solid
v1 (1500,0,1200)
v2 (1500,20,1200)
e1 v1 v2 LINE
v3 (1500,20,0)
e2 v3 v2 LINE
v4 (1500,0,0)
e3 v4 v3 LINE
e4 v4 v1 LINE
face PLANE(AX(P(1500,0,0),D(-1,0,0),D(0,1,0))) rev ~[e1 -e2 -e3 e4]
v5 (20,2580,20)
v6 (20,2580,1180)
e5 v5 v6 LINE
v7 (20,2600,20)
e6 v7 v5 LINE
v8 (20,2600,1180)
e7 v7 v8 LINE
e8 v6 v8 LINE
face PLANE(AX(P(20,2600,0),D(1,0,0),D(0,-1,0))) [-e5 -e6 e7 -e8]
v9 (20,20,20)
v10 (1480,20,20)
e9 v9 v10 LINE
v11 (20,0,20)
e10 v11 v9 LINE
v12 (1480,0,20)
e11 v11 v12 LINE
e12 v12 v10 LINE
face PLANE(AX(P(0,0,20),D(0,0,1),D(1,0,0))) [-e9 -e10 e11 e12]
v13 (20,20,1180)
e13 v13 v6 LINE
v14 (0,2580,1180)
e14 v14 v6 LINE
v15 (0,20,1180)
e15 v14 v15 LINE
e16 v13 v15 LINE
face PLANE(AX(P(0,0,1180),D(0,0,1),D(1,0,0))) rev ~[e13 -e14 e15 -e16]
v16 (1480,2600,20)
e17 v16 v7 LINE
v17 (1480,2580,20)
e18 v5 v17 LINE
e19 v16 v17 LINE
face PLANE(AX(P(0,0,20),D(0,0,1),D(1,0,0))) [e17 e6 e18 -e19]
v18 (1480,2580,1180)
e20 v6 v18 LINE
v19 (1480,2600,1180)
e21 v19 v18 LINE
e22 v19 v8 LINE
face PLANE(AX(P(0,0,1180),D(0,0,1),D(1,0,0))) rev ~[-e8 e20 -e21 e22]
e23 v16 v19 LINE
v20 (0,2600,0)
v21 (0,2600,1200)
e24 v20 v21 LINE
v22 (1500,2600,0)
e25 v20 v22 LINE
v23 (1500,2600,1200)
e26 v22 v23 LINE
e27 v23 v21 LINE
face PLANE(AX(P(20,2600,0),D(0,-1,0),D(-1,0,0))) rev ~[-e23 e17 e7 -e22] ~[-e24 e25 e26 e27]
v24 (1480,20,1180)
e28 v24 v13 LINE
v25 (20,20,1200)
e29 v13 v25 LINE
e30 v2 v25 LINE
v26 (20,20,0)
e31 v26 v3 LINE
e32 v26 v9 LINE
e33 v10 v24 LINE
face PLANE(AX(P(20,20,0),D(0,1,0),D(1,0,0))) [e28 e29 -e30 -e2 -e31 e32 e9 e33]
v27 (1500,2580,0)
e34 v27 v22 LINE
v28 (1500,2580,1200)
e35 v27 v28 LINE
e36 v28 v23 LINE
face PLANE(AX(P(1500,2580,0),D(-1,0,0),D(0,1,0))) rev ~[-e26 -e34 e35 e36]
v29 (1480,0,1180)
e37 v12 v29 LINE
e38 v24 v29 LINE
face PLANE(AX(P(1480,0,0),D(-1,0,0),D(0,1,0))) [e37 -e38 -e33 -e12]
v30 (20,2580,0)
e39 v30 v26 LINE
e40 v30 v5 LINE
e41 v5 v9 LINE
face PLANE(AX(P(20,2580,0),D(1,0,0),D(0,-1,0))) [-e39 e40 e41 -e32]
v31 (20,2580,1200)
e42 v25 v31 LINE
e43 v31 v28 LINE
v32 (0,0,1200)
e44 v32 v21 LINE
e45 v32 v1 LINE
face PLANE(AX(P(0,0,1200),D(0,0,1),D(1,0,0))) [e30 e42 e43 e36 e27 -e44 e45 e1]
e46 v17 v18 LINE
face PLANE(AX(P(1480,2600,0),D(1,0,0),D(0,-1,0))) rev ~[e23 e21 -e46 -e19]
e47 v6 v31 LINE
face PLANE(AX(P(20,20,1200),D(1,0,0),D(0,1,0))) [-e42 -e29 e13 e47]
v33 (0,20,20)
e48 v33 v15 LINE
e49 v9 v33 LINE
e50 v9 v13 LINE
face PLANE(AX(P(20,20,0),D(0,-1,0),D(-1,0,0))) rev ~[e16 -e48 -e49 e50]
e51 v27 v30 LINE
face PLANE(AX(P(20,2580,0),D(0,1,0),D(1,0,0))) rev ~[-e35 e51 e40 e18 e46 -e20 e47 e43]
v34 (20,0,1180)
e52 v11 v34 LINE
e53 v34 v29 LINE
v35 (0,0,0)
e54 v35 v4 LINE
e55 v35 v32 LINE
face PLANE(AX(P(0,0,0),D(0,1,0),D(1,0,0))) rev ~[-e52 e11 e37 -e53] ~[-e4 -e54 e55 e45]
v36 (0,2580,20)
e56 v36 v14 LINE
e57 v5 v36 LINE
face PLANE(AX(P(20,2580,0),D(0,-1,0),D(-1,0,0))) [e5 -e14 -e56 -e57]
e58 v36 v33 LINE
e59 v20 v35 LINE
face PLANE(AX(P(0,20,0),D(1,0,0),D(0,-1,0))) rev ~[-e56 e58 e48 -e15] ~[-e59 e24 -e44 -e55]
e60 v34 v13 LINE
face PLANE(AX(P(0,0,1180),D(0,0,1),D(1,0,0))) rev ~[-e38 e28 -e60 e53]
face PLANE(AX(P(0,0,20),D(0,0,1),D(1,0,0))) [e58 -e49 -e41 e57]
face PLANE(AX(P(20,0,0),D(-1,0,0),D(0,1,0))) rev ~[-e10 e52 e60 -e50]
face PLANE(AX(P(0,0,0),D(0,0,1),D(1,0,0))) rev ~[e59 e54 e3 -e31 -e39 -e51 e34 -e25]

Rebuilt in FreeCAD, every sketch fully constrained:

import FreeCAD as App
import Part
import Sketcher
from FreeCAD import Vector


def add_polygon(sketch, points):
    """Adds a closed chain of lines whose ends are joined by coincident constraints."""
    first, n = sketch.GeometryCount, len(points)
    for a, b in zip(points, points[1:] + points[:1]):
        sketch.addGeometry(Part.LineSegment(App.Vector(*a, 0), App.Vector(*b, 0)), False)
    for i in range(n):
        sketch.addConstraint(Sketcher.Constraint("Coincident", first + i, 2, first + (i + 1) % n, 1))

doc = App.newDocument("Part")
body = doc.addObject("PartDesign::Body", "Body")
body.AllowCompound = True

sketch1 = body.newObject("Sketcher::SketchObject", "Sketch")
sketch1.AttachmentSupport = (doc.getObject("XY_Plane"), [""])
sketch1.MapMode = "FlatFace"
add_polygon(sketch1, [(0, 20), (0, 0), (20, 0), (20, 20)])
add_polygon(sketch1, [(1480, 20), (1480, 0), (1500, 0), (1500, 20)])
add_polygon(sketch1, [(0, 2600), (0, 2580), (20, 2580), (20, 2600)])
add_polygon(sketch1, [(1480, 2600), (1480, 2580), (1500, 2580), (1500, 2600)])
sketch1.addConstraint(Sketcher.Constraint("Vertical", 0))
sketch1.addConstraint(Sketcher.Constraint("Horizontal", 1))
sketch1.addConstraint(Sketcher.Constraint("Vertical", 2))
sketch1.addConstraint(Sketcher.Constraint("Horizontal", 3))
sketch1.addConstraint(Sketcher.Constraint("Vertical", 4))
sketch1.addConstraint(Sketcher.Constraint("Horizontal", 5))
sketch1.addConstraint(Sketcher.Constraint("Vertical", 6))
sketch1.addConstraint(Sketcher.Constraint("Horizontal", 7))
sketch1.addConstraint(Sketcher.Constraint("Vertical", 8))
sketch1.addConstraint(Sketcher.Constraint("Horizontal", 9))
sketch1.addConstraint(Sketcher.Constraint("Vertical", 10))
sketch1.addConstraint(Sketcher.Constraint("Horizontal", 11))
sketch1.addConstraint(Sketcher.Constraint("Vertical", 12))
sketch1.addConstraint(Sketcher.Constraint("Horizontal", 13))
sketch1.addConstraint(Sketcher.Constraint("Vertical", 14))
sketch1.addConstraint(Sketcher.Constraint("Horizontal", 15))
sketch1.addConstraint(Sketcher.Constraint("Coincident", 0, 2, -1, 1))
sketch1.addConstraint(Sketcher.Constraint("PointOnObject", 4, 2, -1))
sketch1.addConstraint(Sketcher.Constraint("PointOnObject", 8, 2, -2))
sketch1.addConstraint(Sketcher.Constraint("Horizontal", 3, 2, 6, 2))
sketch1.addConstraint(Sketcher.Constraint("Horizontal", 9, 2, 12, 2))
sketch1.addConstraint(Sketcher.Constraint("Horizontal", 11, 2, 14, 2))
sketch1.addConstraint(Sketcher.Constraint("Vertical", 2, 2, 9, 2))
sketch1.addConstraint(Sketcher.Constraint("Vertical", 7, 2, 12, 2))
sketch1.addConstraint(Sketcher.Constraint("Vertical", 6, 2, 13, 2))
sketch1.addConstraint(Sketcher.Constraint("Equal", 3, 5))
sketch1.addConstraint(Sketcher.Constraint("Equal", 15, 0))
sketch1.addConstraint(Sketcher.Constraint("Equal", 6, 8))
sketch1.addConstraint(Sketcher.Constraint("DistanceX", 1, 1, 1, 2, 20.0))
sketch1.addConstraint(Sketcher.Constraint("DistanceX", -1, 1, 5, 2, 1500.0))
sketch1.addConstraint(Sketcher.Constraint("DistanceY", -1, 1, 10, 2, 2600.0))
pad1 = body.newObject("PartDesign::Pad", "Pad")
pad1.Profile = sketch1
pad1.Length = 1200

sketch2 = body.newObject("Sketcher::SketchObject", "Sketch001")
sketch2.AttachmentSupport = (doc.getObject("XY_Plane"), [""])
sketch2.MapMode = "FlatFace"
add_polygon(sketch2, [(20, 20), (20, 0), (1480, 0), (1480, 20)])
add_polygon(sketch2, [(0, 2580), (0, 20), (20, 20), (20, 2580)])
add_polygon(sketch2, [(20, 2600), (20, 2580), (1480, 2580), (1480, 2600)])
sketch2.addConstraint(Sketcher.Constraint("Vertical", 0))
sketch2.addConstraint(Sketcher.Constraint("Horizontal", 1))
sketch2.addConstraint(Sketcher.Constraint("Vertical", 2))
sketch2.addConstraint(Sketcher.Constraint("Horizontal", 3))
sketch2.addConstraint(Sketcher.Constraint("Vertical", 4))
sketch2.addConstraint(Sketcher.Constraint("Horizontal", 5))
sketch2.addConstraint(Sketcher.Constraint("Vertical", 6))
sketch2.addConstraint(Sketcher.Constraint("Horizontal", 7))
sketch2.addConstraint(Sketcher.Constraint("Vertical", 8))
sketch2.addConstraint(Sketcher.Constraint("Horizontal", 9))
sketch2.addConstraint(Sketcher.Constraint("Vertical", 10))
sketch2.addConstraint(Sketcher.Constraint("Horizontal", 11))
sketch2.addConstraint(Sketcher.Constraint("Coincident", 5, 2, 3, 2))
sketch2.addConstraint(Sketcher.Constraint("Coincident", 8, 2, 6, 2))
sketch2.addConstraint(Sketcher.Constraint("PointOnObject", 0, 2, -1))
sketch2.addConstraint(Sketcher.Constraint("PointOnObject", 4, 2, -2))
sketch2.addConstraint(Sketcher.Constraint("Vertical", 2, 2, 9, 2))
sketch2.addConstraint(Sketcher.Constraint("Equal", 7, 0))
sketch2.addConstraint(Sketcher.Constraint("Equal", 2, 8))
sketch2.addConstraint(Sketcher.Constraint("DistanceX", 5, 1, 5, 2, 20.0))
sketch2.addConstraint(Sketcher.Constraint("DistanceY", -1, 1, 10, 2, 2600.0))
sketch2.addConstraint(Sketcher.Constraint("DistanceX", 1, 1, 1, 2, 1460.0))
pad2 = body.newObject("PartDesign::Pad", "Pad001")
pad2.Profile = sketch2
pad2.Length = 20

sketch3 = body.newObject("Sketcher::SketchObject", "Sketch002")
sketch3.AttachmentSupport = (doc.getObject("XY_Plane"), [""])
sketch3.MapMode = "FlatFace"
sketch3.AttachmentOffset = App.Placement(Vector(0, 0, 1200), App.Rotation())
add_polygon(sketch3, [(0, 2580), (0, 20), (20, 20), (20, 2580)])
add_polygon(sketch3, [(1480, 20), (20, 20), (20, 0), (1480, 0)])
add_polygon(sketch3, [(20, 2600), (20, 2580), (1480, 2580), (1480, 2600)])
sketch3.addConstraint(Sketcher.Constraint("Vertical", 0))
sketch3.addConstraint(Sketcher.Constraint("Horizontal", 1))
sketch3.addConstraint(Sketcher.Constraint("Vertical", 2))
sketch3.addConstraint(Sketcher.Constraint("Horizontal", 3))
sketch3.addConstraint(Sketcher.Constraint("Horizontal", 4))
sketch3.addConstraint(Sketcher.Constraint("Vertical", 5))
sketch3.addConstraint(Sketcher.Constraint("Horizontal", 6))
sketch3.addConstraint(Sketcher.Constraint("Vertical", 7))
sketch3.addConstraint(Sketcher.Constraint("Vertical", 8))
sketch3.addConstraint(Sketcher.Constraint("Horizontal", 9))
sketch3.addConstraint(Sketcher.Constraint("Vertical", 10))
sketch3.addConstraint(Sketcher.Constraint("Horizontal", 11))
sketch3.addConstraint(Sketcher.Constraint("Coincident", 4, 2, 1, 2))
sketch3.addConstraint(Sketcher.Constraint("Coincident", 8, 2, 2, 2))
sketch3.addConstraint(Sketcher.Constraint("PointOnObject", 0, 2, -2))
sketch3.addConstraint(Sketcher.Constraint("PointOnObject", 5, 2, -1))
sketch3.addConstraint(Sketcher.Constraint("Vertical", 7, 2, 9, 2))
sketch3.addConstraint(Sketcher.Constraint("Equal", 3, 5))
sketch3.addConstraint(Sketcher.Constraint("Equal", 7, 8))
sketch3.addConstraint(Sketcher.Constraint("DistanceX", 1, 1, 1, 2, 20.0))
sketch3.addConstraint(Sketcher.Constraint("DistanceX", 4, 2, 4, 1, 1460.0))
sketch3.addConstraint(Sketcher.Constraint("DistanceY", 0, 2, 0, 1, 2560.0))
pad3 = body.newObject("PartDesign::Pad", "Pad002")
pad3.Profile = sketch3
pad3.Length = 20
pad3.Reversed = True

doc.recompute()
